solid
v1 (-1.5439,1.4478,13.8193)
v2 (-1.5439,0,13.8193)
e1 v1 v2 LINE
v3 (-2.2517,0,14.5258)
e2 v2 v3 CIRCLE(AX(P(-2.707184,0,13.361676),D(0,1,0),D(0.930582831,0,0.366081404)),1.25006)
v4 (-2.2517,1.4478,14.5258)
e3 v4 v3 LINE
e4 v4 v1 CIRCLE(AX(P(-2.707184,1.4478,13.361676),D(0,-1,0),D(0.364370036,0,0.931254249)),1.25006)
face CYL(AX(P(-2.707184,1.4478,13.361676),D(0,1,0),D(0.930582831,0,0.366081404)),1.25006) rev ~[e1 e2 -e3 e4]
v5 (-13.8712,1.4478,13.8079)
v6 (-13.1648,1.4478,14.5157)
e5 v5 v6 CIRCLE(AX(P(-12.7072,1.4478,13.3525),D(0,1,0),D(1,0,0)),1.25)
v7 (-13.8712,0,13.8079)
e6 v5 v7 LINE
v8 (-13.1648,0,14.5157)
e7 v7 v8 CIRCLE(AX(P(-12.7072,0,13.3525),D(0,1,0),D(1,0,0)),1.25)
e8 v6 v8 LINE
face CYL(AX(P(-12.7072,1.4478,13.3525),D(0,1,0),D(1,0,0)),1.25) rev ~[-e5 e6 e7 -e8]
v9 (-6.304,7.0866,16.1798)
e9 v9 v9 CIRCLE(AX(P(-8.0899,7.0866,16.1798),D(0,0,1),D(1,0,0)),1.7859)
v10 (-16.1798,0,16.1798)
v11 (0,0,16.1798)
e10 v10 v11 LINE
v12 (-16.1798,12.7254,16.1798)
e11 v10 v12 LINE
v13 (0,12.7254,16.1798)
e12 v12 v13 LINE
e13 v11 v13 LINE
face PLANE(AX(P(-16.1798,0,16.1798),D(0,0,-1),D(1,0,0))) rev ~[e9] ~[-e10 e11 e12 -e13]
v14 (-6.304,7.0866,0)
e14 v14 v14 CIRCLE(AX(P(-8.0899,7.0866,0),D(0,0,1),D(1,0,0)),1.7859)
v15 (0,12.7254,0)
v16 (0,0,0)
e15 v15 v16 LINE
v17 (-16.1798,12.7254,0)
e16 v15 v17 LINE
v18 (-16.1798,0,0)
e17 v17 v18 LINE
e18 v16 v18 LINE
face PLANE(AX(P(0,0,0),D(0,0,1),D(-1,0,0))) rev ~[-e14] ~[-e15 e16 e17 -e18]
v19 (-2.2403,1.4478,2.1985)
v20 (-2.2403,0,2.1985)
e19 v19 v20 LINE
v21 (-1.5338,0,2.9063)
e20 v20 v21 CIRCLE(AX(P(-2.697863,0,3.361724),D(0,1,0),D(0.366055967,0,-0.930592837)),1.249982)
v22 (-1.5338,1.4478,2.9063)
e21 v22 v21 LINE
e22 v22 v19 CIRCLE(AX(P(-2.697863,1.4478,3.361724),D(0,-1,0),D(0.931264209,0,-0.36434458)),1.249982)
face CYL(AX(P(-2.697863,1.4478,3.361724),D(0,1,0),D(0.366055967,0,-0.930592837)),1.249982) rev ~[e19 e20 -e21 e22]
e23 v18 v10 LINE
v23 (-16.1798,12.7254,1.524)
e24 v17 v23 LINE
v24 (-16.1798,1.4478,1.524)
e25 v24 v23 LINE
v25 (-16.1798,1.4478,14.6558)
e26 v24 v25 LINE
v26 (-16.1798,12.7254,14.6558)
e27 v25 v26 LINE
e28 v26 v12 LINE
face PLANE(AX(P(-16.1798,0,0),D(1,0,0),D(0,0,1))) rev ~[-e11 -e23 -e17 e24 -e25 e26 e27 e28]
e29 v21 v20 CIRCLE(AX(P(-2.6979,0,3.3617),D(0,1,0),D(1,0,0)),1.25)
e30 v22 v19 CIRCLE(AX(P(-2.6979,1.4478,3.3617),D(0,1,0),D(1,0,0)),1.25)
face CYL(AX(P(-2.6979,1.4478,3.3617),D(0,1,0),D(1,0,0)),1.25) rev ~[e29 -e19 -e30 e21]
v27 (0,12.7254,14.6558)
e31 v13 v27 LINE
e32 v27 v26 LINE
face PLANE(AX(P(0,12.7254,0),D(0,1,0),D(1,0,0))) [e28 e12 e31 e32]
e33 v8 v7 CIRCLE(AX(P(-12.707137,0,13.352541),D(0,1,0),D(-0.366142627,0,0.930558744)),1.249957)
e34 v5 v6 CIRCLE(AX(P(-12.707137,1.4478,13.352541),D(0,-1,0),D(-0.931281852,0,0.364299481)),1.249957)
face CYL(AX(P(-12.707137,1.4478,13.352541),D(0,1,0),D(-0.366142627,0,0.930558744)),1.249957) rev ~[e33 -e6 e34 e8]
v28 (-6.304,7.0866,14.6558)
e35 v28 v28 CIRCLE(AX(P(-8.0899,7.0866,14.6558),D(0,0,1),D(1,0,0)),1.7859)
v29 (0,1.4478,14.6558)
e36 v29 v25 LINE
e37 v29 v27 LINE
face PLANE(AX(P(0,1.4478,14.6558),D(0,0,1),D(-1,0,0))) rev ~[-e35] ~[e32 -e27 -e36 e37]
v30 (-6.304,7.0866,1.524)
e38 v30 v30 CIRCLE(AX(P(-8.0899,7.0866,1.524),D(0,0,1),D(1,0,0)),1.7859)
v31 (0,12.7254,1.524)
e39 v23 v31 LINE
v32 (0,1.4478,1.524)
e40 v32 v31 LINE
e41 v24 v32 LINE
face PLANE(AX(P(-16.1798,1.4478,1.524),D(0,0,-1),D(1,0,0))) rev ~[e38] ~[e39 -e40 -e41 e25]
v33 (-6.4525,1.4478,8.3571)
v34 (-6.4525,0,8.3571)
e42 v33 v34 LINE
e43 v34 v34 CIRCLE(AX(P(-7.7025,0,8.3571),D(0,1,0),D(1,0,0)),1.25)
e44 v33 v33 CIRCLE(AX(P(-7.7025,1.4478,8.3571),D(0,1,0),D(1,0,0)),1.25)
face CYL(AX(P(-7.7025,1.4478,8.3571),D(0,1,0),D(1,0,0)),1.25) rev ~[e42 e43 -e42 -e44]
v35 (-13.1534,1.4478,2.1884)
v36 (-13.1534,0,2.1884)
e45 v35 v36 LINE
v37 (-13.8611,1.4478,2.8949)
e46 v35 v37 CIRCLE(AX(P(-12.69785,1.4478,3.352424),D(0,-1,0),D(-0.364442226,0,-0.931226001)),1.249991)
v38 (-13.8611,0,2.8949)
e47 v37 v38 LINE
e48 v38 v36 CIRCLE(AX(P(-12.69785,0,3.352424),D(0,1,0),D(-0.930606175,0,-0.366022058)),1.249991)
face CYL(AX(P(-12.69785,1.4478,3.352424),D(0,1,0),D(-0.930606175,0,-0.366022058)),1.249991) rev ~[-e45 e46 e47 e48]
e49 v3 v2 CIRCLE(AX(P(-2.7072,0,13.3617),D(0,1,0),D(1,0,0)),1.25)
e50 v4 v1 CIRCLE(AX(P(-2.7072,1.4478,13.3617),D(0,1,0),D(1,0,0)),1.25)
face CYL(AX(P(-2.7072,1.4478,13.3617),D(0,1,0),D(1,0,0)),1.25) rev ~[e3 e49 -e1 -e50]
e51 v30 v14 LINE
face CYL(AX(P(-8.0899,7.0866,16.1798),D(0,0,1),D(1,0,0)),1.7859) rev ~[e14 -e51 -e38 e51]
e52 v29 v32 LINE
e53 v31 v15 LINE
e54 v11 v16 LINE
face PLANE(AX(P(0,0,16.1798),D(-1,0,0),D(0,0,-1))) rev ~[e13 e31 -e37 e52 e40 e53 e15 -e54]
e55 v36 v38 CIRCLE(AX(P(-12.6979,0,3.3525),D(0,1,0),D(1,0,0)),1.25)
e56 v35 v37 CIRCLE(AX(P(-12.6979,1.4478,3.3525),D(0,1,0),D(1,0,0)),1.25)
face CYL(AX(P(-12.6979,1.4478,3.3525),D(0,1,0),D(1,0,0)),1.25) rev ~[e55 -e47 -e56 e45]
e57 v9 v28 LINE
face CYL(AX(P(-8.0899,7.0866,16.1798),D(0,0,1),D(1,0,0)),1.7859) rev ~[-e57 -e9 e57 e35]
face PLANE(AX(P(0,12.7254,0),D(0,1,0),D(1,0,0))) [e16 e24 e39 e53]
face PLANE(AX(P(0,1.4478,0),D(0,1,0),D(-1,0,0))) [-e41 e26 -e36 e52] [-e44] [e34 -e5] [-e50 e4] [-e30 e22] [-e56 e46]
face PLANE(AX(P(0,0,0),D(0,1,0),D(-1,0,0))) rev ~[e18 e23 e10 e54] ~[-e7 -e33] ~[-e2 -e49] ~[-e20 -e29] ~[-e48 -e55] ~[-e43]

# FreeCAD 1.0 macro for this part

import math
import FreeCAD as App
import Part
import Sketcher
Q = App.Units.Quantity

doc = App.newDocument("Part")
body = doc.addObject("PartDesign::Body", "Body")

sketch1 = body.newObject("Sketcher::SketchObject", "Sketch")
sketch1.AttachmentSupport = (doc.getObject("XZ_Plane"), [""])
sketch1.MapMode = "FlatFace"
sketch1.addGeometry([
    Part.LineSegment(App.Vector(-16, 0, 0), App.Vector(-16, 16, 0)),
    Part.LineSegment(App.Vector(-16, 16, 0), App.Vector(0, 16, 0)),
    Part.LineSegment(App.Vector(0, 16, 0), App.Vector(0, 0, 0)),
    Part.LineSegment(App.Vector(0, 0, 0), App.Vector(-16, 0, 0)),
], False)
sketch1.addConstraint([
    Sketcher.Constraint("Coincident", 0, 2, 1, 1),
    Sketcher.Constraint("Coincident", 1, 2, 2, 1),
    Sketcher.Constraint("Coincident", 2, 2, 3, 1),
    Sketcher.Constraint("Coincident", 3, 2, 0, 1),
    Sketcher.Constraint("Vertical", 0),
    Sketcher.Constraint("Horizontal", 1),
    Sketcher.Constraint("Vertical", 2),
    Sketcher.Constraint("Horizontal", 3),
    Sketcher.Constraint("Coincident", 2, 2, -1, 1),
    Sketcher.Constraint("Equal", 3, 0),
    Sketcher.Constraint("DistanceX", 1, 1, 1, 2, Q("0.637 in")),
])
pad1 = body.newObject("PartDesign::Pad", "Pad")
pad1.Profile = sketch1
pad1.Length = Q("0.057 in")
pad1.Reversed = True

sketch2 = body.newObject("Sketcher::SketchObject", "Sketch001")
sketch2.AttachmentSupport = (doc.getObject("XZ_Plane"), [""])
sketch2.MapMode = "FlatFace"
sketch2.AttachmentOffset = App.Placement(App.Vector(0, 0, -0.057 * 25.4), App.Rotation())
sketch2.addGeometry([
    Part.LineSegment(App.Vector(-16.2, 16.2, 0), App.Vector(0, 16.2, 0)),
    Part.LineSegment(App.Vector(0, 16.2, 0), App.Vector(0, 14.7, 0)),
    Part.LineSegment(App.Vector(0, 14.7, 0), App.Vector(-16.2, 14.7, 0)),
    Part.LineSegment(App.Vector(-16.2, 14.7, 0), App.Vector(-16.2, 16.2, 0)),
    Part.LineSegment(App.Vector(-16.2, 1.5, 0), App.Vector(0, 1.5, 0)),
    Part.LineSegment(App.Vector(0, 1.5, 0), App.Vector(0, 0, 0)),
    Part.LineSegment(App.Vector(0, 0, 0), App.Vector(-16.2, 0, 0)),
    Part.LineSegment(App.Vector(-16.2, 0, 0), App.Vector(-16.2, 1.5, 0)),
], False)
sketch2.addConstraint([
    Sketcher.Constraint("Coincident", 0, 2, 1, 1),
    Sketcher.Constraint("Coincident", 1, 2, 2, 1),
    Sketcher.Constraint("Coincident", 2, 2, 3, 1),
    Sketcher.Constraint("Coincident", 3, 2, 0, 1),
    Sketcher.Constraint("Coincident", 4, 2, 5, 1),
    Sketcher.Constraint("Coincident", 5, 2, 6, 1),
    Sketcher.Constraint("Coincident", 6, 2, 7, 1),
    Sketcher.Constraint("Coincident", 7, 2, 4, 1),
    Sketcher.Constraint("Horizontal", 0),
    Sketcher.Constraint("Vertical", 1),
    Sketcher.Constraint("Horizontal", 2),
    Sketcher.Constraint("Vertical", 3),
    Sketcher.Constraint("Horizontal", 4),
    Sketcher.Constraint("Vertical", 5),
    Sketcher.Constraint("Horizontal", 6),
    Sketcher.Constraint("Vertical", 7),
    Sketcher.Constraint("Coincident", 5, 2, -1, 1),
    Sketcher.Constraint("PointOnObject", 0, 2, -2),
    Sketcher.Constraint("Vertical", 3, 2, 6, 2),
    Sketcher.Constraint("Equal", 3, 5),
    Sketcher.Constraint("DistanceY", 1, 2, 1, 1, Q("0.06 in")),
    Sketcher.Constraint("DistanceX", 0, 1, 0, 2, Q("0.637 in")),
    Sketcher.Constraint("DistanceY", -1, 1, 0, 2, Q("0.637 in")),
])
pad2 = body.newObject("PartDesign::Pad", "Pad001")
pad2.Profile = sketch2
pad2.Length = Q("0.444 in")
pad2.Reversed = True

sketch3 = body.newObject("Sketcher::SketchObject", "Sketch002")
sketch3.AttachmentSupport = (doc.getObject("XY_Plane"), [""])
sketch3.MapMode = "FlatFace"
sketch3.AttachmentOffset = App.Placement(App.Vector(0, 0, 0.637 * 25.4), App.Rotation())
sketch3.addGeometry(Part.Circle(App.Vector(-8.1, 7.1, 0), App.Vector(0, 0, 1), 1.8), False)
sketch3.addConstraint([
    Sketcher.Constraint("Diameter", 0, Q("0.140622 in")),
    Sketcher.Constraint("DistanceY", -1, 1, 0, 3, Q("0.279 in")),
    Sketcher.Constraint("DistanceX", 0, 3, -1, 1, Q("0.3185 in")),
])
pocket1 = body.newObject("PartDesign::Pocket", "Pocket")
pocket1.Profile = sketch3
pocket1.Type = "ThroughAll"

sketch4 = body.newObject("Sketcher::SketchObject", "Sketch003")
sketch4.AttachmentSupport = (doc.getObject("XZ_Plane"), [""])
sketch4.MapMode = "FlatFace"
sketch4.AttachmentOffset = App.Placement(App.Vector(0, 0, -0.057 * 25.4), App.Rotation())
sketch4.addGeometry([
    Part.Circle(App.Vector(-7.7025, 8.3571, 0), App.Vector(0, 0, 1), 1.25),
    Part.ArcOfCircle(Part.Circle(App.Vector(-12.6979, 3.3525, 0), App.Vector(0, 0, 1), 1.25), math.radians(-158.525447), math.radians(-111.36988)),
    Part.ArcOfCircle(Part.Circle(App.Vector(-12.6979, 3.3525, 0), App.Vector(0, 0, 1), 1.25), math.radians(-111.36988), math.radians(201.474553)),
    Part.ArcOfCircle(Part.Circle(App.Vector(-2.6979, 3.3617, 0), App.Vector(0, 0, 1), 1.25), math.radians(-68.525447), math.radians(-21.365611)),
    Part.ArcOfCircle(Part.Circle(App.Vector(-2.6979, 3.3617, 0), App.Vector(0, 0, 1), 1.249973), math.radians(-21.365611), math.radians(291.474553)),
    Part.ArcOfCircle(Part.Circle(App.Vector(-2.7072, 13.3617, 0), App.Vector(0, 0, 1), 1.25), math.radians(21.472875), math.radians(68.63012)),
    Part.ArcOfCircle(Part.Circle(App.Vector(-2.7072, 13.3617, 0), App.Vector(0, 0, 1), 1.250066), math.radians(68.63012), math.radians(381.472875)),
    Part.ArcOfCircle(Part.Circle(App.Vector(-12.7072, 13.3525, 0), App.Vector(0, 0, 1), 1.25), math.radians(111.474553), math.radians(158.632719)),
    Part.ArcOfCircle(Part.Circle(App.Vector(-12.7072, 13.3525, 0), App.Vector(0, 0, 1), 1.249973), math.radians(158.632719), math.radians(471.474553)),
], False)
sketch4.addConstraint([
    Sketcher.Constraint("Coincident", 1, 1, 2, 2),
    Sketcher.Constraint("Coincident", 2, 1, 1, 2),
    Sketcher.Constraint("Coincident", 3, 1, 4, 2),
    Sketcher.Constraint("Coincident", 4, 1, 3, 2),
    Sketcher.Constraint("Coincident", 5, 1, 6, 2),
    Sketcher.Constraint("Coincident", 6, 1, 5, 2),
    Sketcher.Constraint("Coincident", 7, 1, 8, 2),
    Sketcher.Constraint("Coincident", 8, 1, 7, 2),
    Sketcher.Constraint("Radius", 4, Q("0.0492 in")),
    Sketcher.Constraint("Radius", 8, Q("0.0492 in")),
    Sketcher.Constraint("Diameter", 0, Q("2.5 mm")),
    Sketcher.Constraint("Radius", 1, Q("1.25 mm")),
    Sketcher.Constraint("Radius", 2, Q("1.25 mm")),
    Sketcher.Constraint("Radius", 3, Q("1.25 mm")),
    Sketcher.Constraint("Radius", 5, Q("1.25 mm")),
    Sketcher.Constraint("Radius", 6, Q("1.25 mm")),
    Sketcher.Constraint("Radius", 7, Q("1.25 mm")),
    Sketcher.Constraint("DistanceY", -1, 1, 1, 3, Q("0.132 in")),
    Sketcher.Constraint("DistanceY", -1, 1, 7, 3, Q("0.5257 in")),
    Sketcher.Constraint("DistanceX", 3, 1, -1, 1, Q("0.0882 in")),
    Sketcher.Constraint("DistanceX", 7, 1, -1, 1, Q("0.5183 in")),
    Sketcher.Constraint("DistanceX", 1, 3, 3, 3, Q("0.3937 in")),
    Sketcher.Constraint("DistanceY", 3, 3, 5, 3, Q("0.3937 in")),
    Sketcher.Constraint("DistanceX", 7, 3, 5, 3, Q("0.3937 in")),
    Sketcher.Constraint("DistanceX", 1, 1, 1, 3, Q("0.0458 in")),
    Sketcher.Constraint("DistanceX", 2, 1, 0, 3, Q("0.2146 in")),
    Sketcher.Constraint("DistanceY", 2, 1, 3, 3, Q("0.0462 in")),
    Sketcher.Constraint("DistanceY", 3, 1, 3, 3, Q("0.0458 in")),
    Sketcher.Constraint("DistanceY", 4, 1, 0, 3, Q("0.2146 in")),
    Sketcher.Constraint("DistanceX", 5, 3, 4, 1, Q("0.0462 in")),
    Sketcher.Constraint("DistanceX", 5, 3, 5, 1, Q("0.0458 in")),
    Sketcher.Constraint("DistanceX", 0, 3, 6, 1, Q("0.2146 in")),
    Sketcher.Constraint("DistanceY", 7, 3, 6, 1, Q("0.0462 in")),
    Sketcher.Constraint("DistanceY", 7, 3, 7, 1, Q("0.0458 in")),
    Sketcher.Constraint("DistanceY", 0, 3, 8, 1, Q("0.2146 in")),
])
pocket2 = body.newObject("PartDesign::Pocket", "Pocket001")
pocket2.Profile = sketch4
pocket2.Type = "ThroughAll"
pocket2.Reversed = True

doc.recompute()
